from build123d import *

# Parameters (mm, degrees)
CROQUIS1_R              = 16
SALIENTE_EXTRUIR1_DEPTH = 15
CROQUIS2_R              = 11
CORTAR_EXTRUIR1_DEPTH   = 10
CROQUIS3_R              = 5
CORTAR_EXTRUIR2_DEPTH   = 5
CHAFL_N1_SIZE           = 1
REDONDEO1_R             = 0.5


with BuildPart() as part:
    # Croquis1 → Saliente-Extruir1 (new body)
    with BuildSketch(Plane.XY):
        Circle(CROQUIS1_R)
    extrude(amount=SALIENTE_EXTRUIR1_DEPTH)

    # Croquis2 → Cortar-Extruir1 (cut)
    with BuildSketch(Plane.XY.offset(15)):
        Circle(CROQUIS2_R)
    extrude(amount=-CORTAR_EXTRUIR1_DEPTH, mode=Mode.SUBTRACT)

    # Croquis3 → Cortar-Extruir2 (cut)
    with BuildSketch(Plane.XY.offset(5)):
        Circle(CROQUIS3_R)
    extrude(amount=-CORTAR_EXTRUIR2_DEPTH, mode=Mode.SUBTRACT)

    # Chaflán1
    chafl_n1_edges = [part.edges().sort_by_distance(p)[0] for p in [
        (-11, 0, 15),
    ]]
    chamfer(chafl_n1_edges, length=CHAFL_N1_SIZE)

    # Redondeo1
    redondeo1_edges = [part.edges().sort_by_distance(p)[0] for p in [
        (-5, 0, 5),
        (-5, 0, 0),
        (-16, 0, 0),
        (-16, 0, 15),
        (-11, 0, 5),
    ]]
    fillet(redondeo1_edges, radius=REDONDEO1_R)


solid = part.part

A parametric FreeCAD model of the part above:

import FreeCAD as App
import Part
import Sketcher
from FreeCAD import Vector


def edges_at(feature, points):
    """Names of the edges that pass closest to the given points."""
    edges = feature.Shape.Edges
    near = lambda p: min(range(len(edges)), key=lambda i: edges[i].distToShape(Part.Vertex(*p))[0])
    return sorted({f"Edge{near(p) + 1}" for p in points})

doc = App.newDocument("Part")
body = doc.addObject("PartDesign::Body", "Body")

# Sketch on XY plane
sketch1 = body.newObject("Sketcher::SketchObject", "Sketch")
sketch1.AttachmentSupport = (doc.getObject("XY_Plane"), [""])
sketch1.MapMode = "FlatFace"
sketch1.addGeometry(Part.Circle(Vector(0, 0, 0), Vector(0, 0, 1), 16), False)
sketch1.addConstraint([
    Sketcher.Constraint("Coincident", 0, 3, -1, 1),
    Sketcher.Constraint("Diameter", 0, 32.0),
])
pad1 = body.newObject("PartDesign::Pad", "Pad")
pad1.Profile = sketch1
pad1.Length = 15

# Sketch on XY plane
sketch2 = body.newObject("Sketcher::SketchObject", "Sketch001")
sketch2.AttachmentSupport = (doc.getObject("XY_Plane"), [""])
sketch2.MapMode = "FlatFace"
sketch2.AttachmentOffset = App.Placement(Vector(0, 0, 15), App.Rotation())
sketch2.addGeometry(Part.Circle(Vector(0, 0, 0), Vector(0, 0, 1), 11), False)
sketch2.addConstraint([
    Sketcher.Constraint("Coincident", 0, 3, -1, 1),
    Sketcher.Constraint("Diameter", 0, 22.0),
])
pocket1 = body.newObject("PartDesign::Pocket", "Pocket")
pocket1.Profile = sketch2
pocket1.Length = 10

# Sketch on XY plane
sketch3 = body.newObject("Sketcher::SketchObject", "Sketch002")
sketch3.AttachmentSupport = (doc.getObject("XY_Plane"), [""])
sketch3.MapMode = "FlatFace"
sketch3.AttachmentOffset = App.Placement(Vector(0, 0, 5), App.Rotation())
sketch3.addGeometry(Part.Circle(Vector(0, 0, 0), Vector(0, 0, 1), 5), False)
sketch3.addConstraint([
    Sketcher.Constraint("Coincident", 0, 3, -1, 1),
    Sketcher.Constraint("Diameter", 0, 10.0),
])
pocket2 = body.newObject("PartDesign::Pocket", "Pocket001")
pocket2.Profile = sketch3
pocket2.Length = 5
doc.recompute()

chamfer = body.newObject("PartDesign::Chamfer", "Chamfer")
chamfer.Base = (pocket2, edges_at(pocket2, [(-11, 0, 15)]))
chamfer.Size = 1
doc.recompute()

fillet = body.newObject("PartDesign::Fillet", "Fillet")
fillet.Base = (chamfer, edges_at(chamfer, [
    (-5, 0, 5),
    (-5, 0, 0),
    (-16, 0, 0),
    (-16, 0, 15),
    (-11, 0, 5),
]))
fillet.Radius = 0.5

doc.recompute()
